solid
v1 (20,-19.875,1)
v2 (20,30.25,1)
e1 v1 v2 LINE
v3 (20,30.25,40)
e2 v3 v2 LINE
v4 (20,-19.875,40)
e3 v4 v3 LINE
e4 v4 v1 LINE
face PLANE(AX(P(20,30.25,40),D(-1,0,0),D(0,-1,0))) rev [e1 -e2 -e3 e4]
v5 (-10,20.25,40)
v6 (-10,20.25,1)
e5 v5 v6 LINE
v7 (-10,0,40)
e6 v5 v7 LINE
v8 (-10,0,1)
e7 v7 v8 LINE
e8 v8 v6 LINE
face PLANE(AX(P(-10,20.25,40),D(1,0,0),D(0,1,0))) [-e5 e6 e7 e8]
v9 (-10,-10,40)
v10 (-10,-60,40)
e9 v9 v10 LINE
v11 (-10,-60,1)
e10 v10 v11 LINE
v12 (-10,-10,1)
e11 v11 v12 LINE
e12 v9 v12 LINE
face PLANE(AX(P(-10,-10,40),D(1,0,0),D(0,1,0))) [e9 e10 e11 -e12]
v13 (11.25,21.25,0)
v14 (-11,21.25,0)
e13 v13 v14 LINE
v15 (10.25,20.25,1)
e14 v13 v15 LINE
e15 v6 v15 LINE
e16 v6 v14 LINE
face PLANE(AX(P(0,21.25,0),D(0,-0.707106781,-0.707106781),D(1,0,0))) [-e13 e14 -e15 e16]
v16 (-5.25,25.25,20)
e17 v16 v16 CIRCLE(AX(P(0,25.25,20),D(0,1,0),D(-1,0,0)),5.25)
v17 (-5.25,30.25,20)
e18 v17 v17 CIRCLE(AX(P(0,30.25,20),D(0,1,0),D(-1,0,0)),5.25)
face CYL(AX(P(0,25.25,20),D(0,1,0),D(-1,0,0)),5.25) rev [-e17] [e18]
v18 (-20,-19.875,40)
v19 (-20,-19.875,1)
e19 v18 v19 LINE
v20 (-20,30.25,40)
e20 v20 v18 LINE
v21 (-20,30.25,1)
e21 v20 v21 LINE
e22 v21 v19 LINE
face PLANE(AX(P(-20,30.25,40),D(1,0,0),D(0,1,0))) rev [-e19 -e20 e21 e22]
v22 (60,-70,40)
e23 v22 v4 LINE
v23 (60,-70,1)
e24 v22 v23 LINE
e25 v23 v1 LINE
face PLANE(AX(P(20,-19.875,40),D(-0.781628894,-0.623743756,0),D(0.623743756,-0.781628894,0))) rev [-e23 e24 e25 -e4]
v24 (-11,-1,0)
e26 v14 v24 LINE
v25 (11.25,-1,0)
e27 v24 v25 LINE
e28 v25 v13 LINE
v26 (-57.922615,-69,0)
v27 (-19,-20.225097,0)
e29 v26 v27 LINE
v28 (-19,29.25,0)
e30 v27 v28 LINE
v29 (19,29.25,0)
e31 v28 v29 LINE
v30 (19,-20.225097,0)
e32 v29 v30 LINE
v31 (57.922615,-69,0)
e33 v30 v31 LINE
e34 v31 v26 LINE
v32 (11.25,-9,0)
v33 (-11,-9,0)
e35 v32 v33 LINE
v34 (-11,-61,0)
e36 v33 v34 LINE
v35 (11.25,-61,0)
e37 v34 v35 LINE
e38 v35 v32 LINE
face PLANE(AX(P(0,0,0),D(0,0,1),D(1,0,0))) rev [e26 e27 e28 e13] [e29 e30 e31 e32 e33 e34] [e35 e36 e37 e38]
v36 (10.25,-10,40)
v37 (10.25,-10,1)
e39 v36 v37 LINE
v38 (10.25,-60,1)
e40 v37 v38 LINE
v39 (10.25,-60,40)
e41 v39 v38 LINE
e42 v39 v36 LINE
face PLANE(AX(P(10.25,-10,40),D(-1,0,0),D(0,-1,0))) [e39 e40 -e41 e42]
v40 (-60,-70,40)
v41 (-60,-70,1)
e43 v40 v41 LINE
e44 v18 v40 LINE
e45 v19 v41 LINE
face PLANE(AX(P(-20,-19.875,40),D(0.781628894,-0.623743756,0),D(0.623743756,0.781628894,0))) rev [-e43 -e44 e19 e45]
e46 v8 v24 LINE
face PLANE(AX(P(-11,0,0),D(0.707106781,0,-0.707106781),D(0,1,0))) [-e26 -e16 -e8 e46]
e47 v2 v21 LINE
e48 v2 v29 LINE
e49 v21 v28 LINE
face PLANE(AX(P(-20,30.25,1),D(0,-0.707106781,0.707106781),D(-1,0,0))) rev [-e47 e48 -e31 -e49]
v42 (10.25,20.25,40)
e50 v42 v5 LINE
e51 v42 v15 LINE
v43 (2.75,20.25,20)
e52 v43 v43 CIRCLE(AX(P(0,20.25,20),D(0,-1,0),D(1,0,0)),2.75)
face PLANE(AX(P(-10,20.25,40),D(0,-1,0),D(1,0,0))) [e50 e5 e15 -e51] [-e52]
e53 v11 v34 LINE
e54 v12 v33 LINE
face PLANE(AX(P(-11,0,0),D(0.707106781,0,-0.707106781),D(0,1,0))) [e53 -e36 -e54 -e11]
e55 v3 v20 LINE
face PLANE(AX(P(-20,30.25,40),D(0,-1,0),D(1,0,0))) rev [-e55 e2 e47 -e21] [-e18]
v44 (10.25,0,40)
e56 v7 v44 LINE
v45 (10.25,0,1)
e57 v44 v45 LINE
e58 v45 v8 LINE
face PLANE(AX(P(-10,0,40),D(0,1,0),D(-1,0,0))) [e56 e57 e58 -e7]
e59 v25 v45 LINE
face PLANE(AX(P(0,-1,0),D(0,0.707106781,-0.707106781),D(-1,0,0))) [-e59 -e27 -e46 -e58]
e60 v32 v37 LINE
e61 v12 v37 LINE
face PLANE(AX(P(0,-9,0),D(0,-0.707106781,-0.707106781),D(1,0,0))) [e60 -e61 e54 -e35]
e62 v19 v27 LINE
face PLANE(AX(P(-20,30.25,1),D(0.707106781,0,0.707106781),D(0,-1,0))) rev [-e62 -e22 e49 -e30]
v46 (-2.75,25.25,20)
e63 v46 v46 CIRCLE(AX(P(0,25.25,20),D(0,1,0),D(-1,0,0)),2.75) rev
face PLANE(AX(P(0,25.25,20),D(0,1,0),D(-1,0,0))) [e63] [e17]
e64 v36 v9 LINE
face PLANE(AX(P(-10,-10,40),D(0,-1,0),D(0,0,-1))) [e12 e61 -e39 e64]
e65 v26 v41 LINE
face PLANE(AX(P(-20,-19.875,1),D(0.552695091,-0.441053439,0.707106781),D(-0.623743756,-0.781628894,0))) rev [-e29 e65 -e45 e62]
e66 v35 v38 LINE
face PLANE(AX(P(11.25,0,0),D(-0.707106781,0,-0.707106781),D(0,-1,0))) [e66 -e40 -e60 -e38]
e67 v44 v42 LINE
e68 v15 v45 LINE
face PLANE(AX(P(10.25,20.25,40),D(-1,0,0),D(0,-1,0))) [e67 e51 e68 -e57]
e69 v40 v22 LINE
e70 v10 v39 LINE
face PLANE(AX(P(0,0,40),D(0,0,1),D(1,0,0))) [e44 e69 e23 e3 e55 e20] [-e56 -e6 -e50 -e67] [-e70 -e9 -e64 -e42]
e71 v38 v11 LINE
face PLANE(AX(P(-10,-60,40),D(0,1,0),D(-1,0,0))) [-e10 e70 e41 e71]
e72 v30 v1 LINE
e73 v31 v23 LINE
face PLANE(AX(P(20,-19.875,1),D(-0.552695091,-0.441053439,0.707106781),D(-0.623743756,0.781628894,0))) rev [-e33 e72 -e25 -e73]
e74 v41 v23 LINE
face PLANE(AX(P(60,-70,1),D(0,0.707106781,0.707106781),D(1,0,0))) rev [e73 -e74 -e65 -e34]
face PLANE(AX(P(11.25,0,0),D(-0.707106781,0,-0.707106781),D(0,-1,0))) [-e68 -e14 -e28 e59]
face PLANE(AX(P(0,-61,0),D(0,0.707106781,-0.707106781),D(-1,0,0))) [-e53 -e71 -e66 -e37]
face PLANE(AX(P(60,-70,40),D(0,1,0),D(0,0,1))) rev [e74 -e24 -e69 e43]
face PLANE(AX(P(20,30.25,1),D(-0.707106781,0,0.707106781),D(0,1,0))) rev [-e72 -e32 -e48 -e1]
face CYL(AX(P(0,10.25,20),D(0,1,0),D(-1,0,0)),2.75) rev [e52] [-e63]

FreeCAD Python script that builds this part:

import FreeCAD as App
import Part
import Sketcher
Q = App.Units.Quantity


def edges_at(feature, points):
    """Names of the edges that pass closest to the given points."""
    edges = feature.Shape.Edges
    near = lambda p: min(range(len(edges)), key=lambda i: edges[i].distToShape(Part.Vertex(*p))[0])
    return sorted({f"Edge{near(p) + 1}" for p in points})


def add_polygon(sketch, points):
    """Adds a closed chain of lines whose ends are joined by coincident constraints."""
    first, n = sketch.GeometryCount, len(points)
    for a, b in zip(points, points[1:] + points[:1]):
        sketch.addGeometry(Part.LineSegment(App.Vector(*a, 0), App.Vector(*b, 0)), False)
    for i in range(n):
        sketch.addConstraint(Sketcher.Constraint("Coincident", first + i, 2, first + (i + 1) % n, 1))

doc = App.newDocument("Part")
body = doc.addObject("PartDesign::Body", "Body")

# Sketch on XY plane
sketch1 = doc.addObject("Sketcher::SketchObject", "Sketch")
body.addObject(sketch1)
sketch1.AttachmentSupport = (doc.XY_Plane, [""])
sketch1.MapMode = "FlatFace"
add_polygon(sketch1, [(60, -70), (20, -20), (20, 30), (-20, 30), (-20, -20), (-60, -70)])  # lines 0-5
add_polygon(sketch1, [(-10, -60), (-10, -10), (10, -10), (10, -60)])  # lines 6-9
add_polygon(sketch1, [(-10, 0), (-10, 20), (10, 20), (10, 0)])  # lines 10-13
sketch1.addConstraint([
    Sketcher.Constraint("Vertical", 1),
    Sketcher.Constraint("Horizontal", 2),
    Sketcher.Constraint("Vertical", 3),
    Sketcher.Constraint("Horizontal", 5),
    Sketcher.Constraint("Vertical", 6),
    Sketcher.Constraint("Horizontal", 7),
    Sketcher.Constraint("Vertical", 8),
    Sketcher.Constraint("Horizontal", 9),
    Sketcher.Constraint("Vertical", 10),
    Sketcher.Constraint("Horizontal", 11),
    Sketcher.Constraint("Vertical", 12),
    Sketcher.Constraint("Horizontal", 13),
    Sketcher.Constraint("Symmetric", 0, 2, 3, 2, -2),
    Sketcher.Constraint("PointOnObject", 12, 2, -1),
    Sketcher.Constraint("Vertical", 9, 2, 10, 2),
    Sketcher.Constraint("Vertical", 8, 2, 11, 2),
    Sketcher.Constraint("Equal", 13, 10),
    Sketcher.Constraint("Equal", 0, 4),
    Sketcher.Constraint("DistanceX", 2, 2, 2, 1, Q("40 mm")),
    Sketcher.Constraint("DistanceX", 5, 1, 5, 2, Q("120 mm")),
    Sketcher.Constraint("DistanceY", 6, 1, 6, 2, Q("50 mm")),
    Sketcher.Constraint("DistanceY", 4, 2, -1, 1, Q("70 mm")),
    Sketcher.Constraint("DistanceX", 6, 2, -1, 1, Q("10 mm")),
    Sketcher.Constraint("DistanceY", 6, 2, -1, 1, Q("10 mm")),
    Sketcher.Constraint("DistanceY", 10, 2, 2, 2, Q("10 mm")),
    Sketcher.Constraint("DistanceX", 7, 1, 7, 2, Q("20.25 mm")),
    Sketcher.Constraint("DistanceY", 1, 1, 1, 2, Q("50.125 mm")),
])
pad1 = doc.addObject("PartDesign::Pad", "Pad")
body.addObject(pad1)
pad1.Profile = sketch1
pad1.Length = 40
doc.recompute()

chamfer = doc.addObject("PartDesign::Chamfer", "Chamfer")
body.addObject(chamfer)
chamfer.Base = (pad1, edges_at(pad1, [
    (-40, -44.938, 0),
    (-20, 5.188, 0),
    (-10, 10.125, 0),
    (0.125, 0, 0),
    (10.25, 10.125, 0),
    (0.125, 20.25, 0),
    (-10, -35, 0),
    (0.125, -60, 0),
    (10.25, -35, 0),
    (0.125, -10, 0),
    (0, 30.25, 0),
    (20, 5.188, 0),
    (40, -44.938, 0),
    (0, -70, 0),
]))
chamfer.Size = 1

# Sketch on XZ plane
sketch2 = doc.addObject("Sketcher::SketchObject", "Sketch001")
body.addObject(sketch2)
sketch2.AttachmentSupport = (doc.XZ_Plane, [""])
sketch2.MapMode = "FlatFace"
sketch2.AttachmentOffset = App.Placement(App.Vector(0, 0, -30.25), App.Rotation())
sketch2.addGeometry(Part.Circle(App.Vector(0, 20, 0), App.Vector(0, 0, 1), 2.8), False)
sketch2.addConstraint([
    Sketcher.Constraint("PointOnObject", 0, 3, -2),
    Sketcher.Constraint("Diameter", 0, Q("5.5 mm")),
    Sketcher.Constraint("DistanceY", -1, 1, 0, 3, Q("20 mm")),
])
pocket1 = doc.addObject("PartDesign::Pocket", "Pocket")
body.addObject(pocket1)
pocket1.Profile = sketch2
pocket1.Length = 20
pocket1.Reversed = True

# Sketch on XZ plane
sketch3 = doc.addObject("Sketcher::SketchObject", "Sketch002")
body.addObject(sketch3)
sketch3.AttachmentSupport = (doc.XZ_Plane, [""])
sketch3.MapMode = "FlatFace"
sketch3.AttachmentOffset = App.Placement(App.Vector(0, 0, -30.25), App.Rotation())
sketch3.addGeometry(Part.Circle(App.Vector(0, 20, 0), App.Vector(0, 0, 1), 5), False)
sketch3.addConstraint([
    Sketcher.Constraint("PointOnObject", 0, 3, -2),
    Sketcher.Constraint("Diameter", 0, Q("10.5 mm")),
    Sketcher.Constraint("DistanceY", -1, 1, 0, 3, Q("20 mm")),
])
pocket2 = doc.addObject("PartDesign::Pocket", "Pocket001")
body.addObject(pocket2)
pocket2.Profile = sketch3
pocket2.Length = 5
pocket2.Reversed = True

doc.recompute()
